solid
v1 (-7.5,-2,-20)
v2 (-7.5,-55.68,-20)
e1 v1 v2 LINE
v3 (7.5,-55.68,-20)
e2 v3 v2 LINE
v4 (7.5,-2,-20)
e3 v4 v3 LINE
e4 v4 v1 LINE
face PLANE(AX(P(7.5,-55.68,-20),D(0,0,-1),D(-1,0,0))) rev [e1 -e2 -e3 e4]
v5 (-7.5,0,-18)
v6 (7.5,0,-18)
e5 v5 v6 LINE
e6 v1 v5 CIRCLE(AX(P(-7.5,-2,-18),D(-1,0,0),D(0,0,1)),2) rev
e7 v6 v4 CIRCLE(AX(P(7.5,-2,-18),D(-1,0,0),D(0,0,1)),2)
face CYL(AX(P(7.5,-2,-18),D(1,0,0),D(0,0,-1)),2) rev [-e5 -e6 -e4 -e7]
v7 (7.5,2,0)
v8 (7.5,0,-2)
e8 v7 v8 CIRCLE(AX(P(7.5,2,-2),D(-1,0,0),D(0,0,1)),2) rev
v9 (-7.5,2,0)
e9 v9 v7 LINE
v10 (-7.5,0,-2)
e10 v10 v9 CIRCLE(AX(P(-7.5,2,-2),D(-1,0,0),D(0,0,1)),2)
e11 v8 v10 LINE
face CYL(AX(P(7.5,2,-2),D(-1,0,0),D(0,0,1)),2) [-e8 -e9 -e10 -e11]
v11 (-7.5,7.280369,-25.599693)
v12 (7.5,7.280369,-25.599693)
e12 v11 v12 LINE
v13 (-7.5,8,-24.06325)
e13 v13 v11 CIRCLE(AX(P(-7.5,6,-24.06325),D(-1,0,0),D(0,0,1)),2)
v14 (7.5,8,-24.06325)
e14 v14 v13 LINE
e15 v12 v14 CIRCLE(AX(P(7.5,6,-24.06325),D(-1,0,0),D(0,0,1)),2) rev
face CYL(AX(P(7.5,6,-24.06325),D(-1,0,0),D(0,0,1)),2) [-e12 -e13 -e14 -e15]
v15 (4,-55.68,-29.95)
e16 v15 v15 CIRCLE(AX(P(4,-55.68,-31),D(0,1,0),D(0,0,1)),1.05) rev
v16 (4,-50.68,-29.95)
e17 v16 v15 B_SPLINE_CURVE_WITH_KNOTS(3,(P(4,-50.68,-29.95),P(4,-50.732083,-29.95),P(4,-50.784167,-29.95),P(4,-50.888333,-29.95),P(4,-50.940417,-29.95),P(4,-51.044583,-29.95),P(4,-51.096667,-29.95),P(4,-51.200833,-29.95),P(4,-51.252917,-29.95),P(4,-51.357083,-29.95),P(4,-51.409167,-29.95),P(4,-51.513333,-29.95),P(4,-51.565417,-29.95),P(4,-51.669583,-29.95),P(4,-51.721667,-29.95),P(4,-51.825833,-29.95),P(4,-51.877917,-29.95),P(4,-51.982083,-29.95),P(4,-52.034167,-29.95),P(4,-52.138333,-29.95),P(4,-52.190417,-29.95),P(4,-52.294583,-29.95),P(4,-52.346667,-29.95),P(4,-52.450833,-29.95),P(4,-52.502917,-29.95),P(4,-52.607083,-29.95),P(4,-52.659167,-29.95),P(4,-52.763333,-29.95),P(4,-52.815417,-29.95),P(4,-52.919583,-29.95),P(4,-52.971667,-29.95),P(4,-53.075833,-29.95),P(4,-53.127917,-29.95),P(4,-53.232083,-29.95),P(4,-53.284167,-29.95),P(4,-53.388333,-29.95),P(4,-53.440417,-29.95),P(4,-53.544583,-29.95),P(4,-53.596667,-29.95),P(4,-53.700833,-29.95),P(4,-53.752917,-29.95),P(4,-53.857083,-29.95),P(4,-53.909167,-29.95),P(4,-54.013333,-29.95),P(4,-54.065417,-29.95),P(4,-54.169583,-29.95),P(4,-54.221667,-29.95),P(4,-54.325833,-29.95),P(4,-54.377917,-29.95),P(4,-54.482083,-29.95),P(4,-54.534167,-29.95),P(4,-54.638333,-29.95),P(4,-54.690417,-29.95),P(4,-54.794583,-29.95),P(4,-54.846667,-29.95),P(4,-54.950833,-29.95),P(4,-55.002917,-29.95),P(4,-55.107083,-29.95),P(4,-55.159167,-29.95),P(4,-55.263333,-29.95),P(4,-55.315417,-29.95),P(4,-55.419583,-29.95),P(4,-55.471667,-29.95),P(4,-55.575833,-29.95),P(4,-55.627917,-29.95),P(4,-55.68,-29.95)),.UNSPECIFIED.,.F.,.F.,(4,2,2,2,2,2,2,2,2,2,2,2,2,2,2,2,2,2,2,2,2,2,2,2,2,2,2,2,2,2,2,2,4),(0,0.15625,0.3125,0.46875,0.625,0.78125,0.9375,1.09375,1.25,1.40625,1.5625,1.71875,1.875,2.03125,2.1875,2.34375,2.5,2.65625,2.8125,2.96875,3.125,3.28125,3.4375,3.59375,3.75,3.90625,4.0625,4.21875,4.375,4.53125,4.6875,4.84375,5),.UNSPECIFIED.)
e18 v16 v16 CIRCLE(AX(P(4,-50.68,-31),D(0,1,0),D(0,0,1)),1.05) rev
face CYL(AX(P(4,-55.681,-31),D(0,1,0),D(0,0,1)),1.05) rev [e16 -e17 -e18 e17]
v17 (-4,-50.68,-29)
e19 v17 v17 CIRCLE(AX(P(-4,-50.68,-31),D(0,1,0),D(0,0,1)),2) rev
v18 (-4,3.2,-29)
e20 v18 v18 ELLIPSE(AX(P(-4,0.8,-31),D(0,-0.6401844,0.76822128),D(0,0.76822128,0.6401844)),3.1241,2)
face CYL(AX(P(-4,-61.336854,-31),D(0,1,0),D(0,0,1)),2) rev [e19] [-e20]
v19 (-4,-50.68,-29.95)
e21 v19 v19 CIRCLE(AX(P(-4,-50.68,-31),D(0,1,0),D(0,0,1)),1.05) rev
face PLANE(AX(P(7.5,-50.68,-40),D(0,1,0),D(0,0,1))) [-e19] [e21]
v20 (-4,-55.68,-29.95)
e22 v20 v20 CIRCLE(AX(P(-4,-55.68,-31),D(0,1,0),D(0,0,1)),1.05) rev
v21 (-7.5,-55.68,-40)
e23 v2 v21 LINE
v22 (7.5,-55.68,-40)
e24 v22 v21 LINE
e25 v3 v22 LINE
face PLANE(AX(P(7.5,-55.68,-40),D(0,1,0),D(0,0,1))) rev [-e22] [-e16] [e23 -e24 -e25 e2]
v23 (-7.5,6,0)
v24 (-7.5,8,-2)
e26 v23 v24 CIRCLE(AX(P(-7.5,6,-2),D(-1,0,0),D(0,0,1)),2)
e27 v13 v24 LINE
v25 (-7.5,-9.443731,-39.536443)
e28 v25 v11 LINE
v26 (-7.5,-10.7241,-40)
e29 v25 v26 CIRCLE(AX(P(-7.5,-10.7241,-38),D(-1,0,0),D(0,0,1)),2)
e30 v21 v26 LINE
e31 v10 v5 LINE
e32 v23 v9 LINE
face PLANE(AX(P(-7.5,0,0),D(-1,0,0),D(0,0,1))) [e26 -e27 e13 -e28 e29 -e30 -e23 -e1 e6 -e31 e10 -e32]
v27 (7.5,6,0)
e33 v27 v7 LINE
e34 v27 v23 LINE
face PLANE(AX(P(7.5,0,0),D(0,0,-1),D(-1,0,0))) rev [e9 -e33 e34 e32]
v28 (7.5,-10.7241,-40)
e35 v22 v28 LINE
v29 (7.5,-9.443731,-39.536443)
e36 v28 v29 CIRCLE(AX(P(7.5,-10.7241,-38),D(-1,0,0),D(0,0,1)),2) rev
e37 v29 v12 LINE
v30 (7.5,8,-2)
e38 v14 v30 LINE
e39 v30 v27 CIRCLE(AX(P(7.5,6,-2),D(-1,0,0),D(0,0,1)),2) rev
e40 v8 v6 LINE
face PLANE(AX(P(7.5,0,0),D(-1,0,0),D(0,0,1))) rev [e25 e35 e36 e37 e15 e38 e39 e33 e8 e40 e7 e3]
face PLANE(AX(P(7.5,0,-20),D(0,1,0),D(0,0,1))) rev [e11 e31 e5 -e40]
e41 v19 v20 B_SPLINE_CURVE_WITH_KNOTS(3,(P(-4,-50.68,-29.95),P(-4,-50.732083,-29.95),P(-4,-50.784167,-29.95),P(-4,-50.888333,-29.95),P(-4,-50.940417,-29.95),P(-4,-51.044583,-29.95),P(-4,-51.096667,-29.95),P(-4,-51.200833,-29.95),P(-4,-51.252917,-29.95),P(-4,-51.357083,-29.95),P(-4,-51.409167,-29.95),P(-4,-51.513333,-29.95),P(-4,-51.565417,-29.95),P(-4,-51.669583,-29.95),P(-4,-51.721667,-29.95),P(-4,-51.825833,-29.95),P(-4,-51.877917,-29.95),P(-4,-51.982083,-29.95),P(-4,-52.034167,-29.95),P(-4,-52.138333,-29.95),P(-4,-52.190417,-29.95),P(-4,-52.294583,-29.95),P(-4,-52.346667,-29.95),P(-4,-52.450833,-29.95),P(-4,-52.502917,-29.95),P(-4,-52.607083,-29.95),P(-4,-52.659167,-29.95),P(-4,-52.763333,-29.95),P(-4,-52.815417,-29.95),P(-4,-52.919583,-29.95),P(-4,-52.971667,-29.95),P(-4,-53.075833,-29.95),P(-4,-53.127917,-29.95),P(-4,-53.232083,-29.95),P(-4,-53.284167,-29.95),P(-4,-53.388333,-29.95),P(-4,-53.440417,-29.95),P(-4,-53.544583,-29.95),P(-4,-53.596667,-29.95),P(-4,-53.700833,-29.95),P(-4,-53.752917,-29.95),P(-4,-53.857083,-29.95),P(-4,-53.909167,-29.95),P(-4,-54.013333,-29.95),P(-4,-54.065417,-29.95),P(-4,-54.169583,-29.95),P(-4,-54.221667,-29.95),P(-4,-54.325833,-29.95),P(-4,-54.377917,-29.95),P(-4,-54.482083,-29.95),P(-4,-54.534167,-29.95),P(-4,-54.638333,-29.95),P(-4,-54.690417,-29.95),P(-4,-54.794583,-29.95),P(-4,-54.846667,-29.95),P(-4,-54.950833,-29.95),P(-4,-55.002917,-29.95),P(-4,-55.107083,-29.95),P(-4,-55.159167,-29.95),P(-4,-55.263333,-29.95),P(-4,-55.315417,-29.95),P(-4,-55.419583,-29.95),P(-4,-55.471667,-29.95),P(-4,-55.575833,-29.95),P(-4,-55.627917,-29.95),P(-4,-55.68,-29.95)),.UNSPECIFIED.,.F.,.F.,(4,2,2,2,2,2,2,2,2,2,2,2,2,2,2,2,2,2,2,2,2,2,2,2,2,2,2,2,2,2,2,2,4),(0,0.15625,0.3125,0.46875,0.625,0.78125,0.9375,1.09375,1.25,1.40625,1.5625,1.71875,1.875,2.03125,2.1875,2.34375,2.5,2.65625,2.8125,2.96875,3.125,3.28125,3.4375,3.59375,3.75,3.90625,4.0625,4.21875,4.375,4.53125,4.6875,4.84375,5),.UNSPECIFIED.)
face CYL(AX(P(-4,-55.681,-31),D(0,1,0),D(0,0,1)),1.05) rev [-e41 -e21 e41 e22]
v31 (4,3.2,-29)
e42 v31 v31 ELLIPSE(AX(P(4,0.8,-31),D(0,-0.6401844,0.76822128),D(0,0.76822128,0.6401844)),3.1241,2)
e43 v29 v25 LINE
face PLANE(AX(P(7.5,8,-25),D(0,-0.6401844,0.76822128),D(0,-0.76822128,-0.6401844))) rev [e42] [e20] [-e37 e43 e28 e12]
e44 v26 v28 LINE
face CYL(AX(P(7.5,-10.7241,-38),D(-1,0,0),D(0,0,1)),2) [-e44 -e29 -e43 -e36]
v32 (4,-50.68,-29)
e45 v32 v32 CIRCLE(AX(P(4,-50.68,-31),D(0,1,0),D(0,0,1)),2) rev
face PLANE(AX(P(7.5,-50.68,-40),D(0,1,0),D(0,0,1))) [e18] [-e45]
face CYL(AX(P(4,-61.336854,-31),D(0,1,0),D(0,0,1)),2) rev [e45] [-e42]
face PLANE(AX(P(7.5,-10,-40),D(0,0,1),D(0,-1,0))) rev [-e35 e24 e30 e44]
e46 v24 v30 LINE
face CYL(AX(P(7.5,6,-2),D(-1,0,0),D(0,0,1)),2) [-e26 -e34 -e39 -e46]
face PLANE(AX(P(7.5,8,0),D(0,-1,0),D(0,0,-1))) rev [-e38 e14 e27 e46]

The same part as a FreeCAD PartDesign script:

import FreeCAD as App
import Part
import Sketcher


def edges_at(feature, points):
    """Names of the edges that pass closest to the given points."""
    edges = feature.Shape.Edges
    near = lambda p: min(range(len(edges)), key=lambda i: edges[i].distToShape(Part.Vertex(*p))[0])
    return sorted({f"Edge{near(p) + 1}" for p in points})

doc = App.newDocument("Part")
body = doc.addObject("PartDesign::Body", "Body")

sketch1 = body.newObject("Sketcher::SketchObject", "Sketch")
sketch1.AttachmentSupport = (doc.getObject("YZ_Plane"), [""])
sketch1.MapMode = "FlatFace"
sketch1.addGeometry(Part.LineSegment(App.Vector(8, 0, 0), App.Vector(0, 0, 0)), False)
sketch1.addGeometry(Part.LineSegment(App.Vector(0, 0, 0), App.Vector(0, -20, 0)), False)
sketch1.addGeometry(Part.LineSegment(App.Vector(0, -20, 0), App.Vector(-55.68, -20, 0)), False)
sketch1.addGeometry(Part.LineSegment(App.Vector(-55.68, -20, 0), App.Vector(-55.68, -40, 0)), False)
sketch1.addGeometry(Part.LineSegment(App.Vector(-55.68, -40, 0), App.Vector(-10, -40, 0)), False)
sketch1.addGeometry(Part.LineSegment(App.Vector(-10, -40, 0), App.Vector(8, -25, 0)), False)
sketch1.addGeometry(Part.LineSegment(App.Vector(8, -25, 0), App.Vector(8, 0, 0)), False)
sketch1.addConstraint(Sketcher.Constraint("Coincident", 0, 2, 1, 1))
sketch1.addConstraint(Sketcher.Constraint("Coincident", 1, 2, 2, 1))
sketch1.addConstraint(Sketcher.Constraint("Coincident", 2, 2, 3, 1))
sketch1.addConstraint(Sketcher.Constraint("Coincident", 3, 2, 4, 1))
sketch1.addConstraint(Sketcher.Constraint("Coincident", 4, 2, 5, 1))
sketch1.addConstraint(Sketcher.Constraint("Coincident", 5, 2, 6, 1))
sketch1.addConstraint(Sketcher.Constraint("Coincident", 6, 2, 0, 1))
sketch1.addConstraint(Sketcher.Constraint("Horizontal", 0))
sketch1.addConstraint(Sketcher.Constraint("Vertical", 1))
sketch1.addConstraint(Sketcher.Constraint("Horizontal", 2))
sketch1.addConstraint(Sketcher.Constraint("Vertical", 3))
sketch1.addConstraint(Sketcher.Constraint("Horizontal", 4))
sketch1.addConstraint(Sketcher.Constraint("Vertical", 6))
sketch1.addConstraint(Sketcher.Constraint("Coincident", 0, 2, -1, 1))
sketch1.addConstraint(Sketcher.Constraint("Equal", 1, 3))
sketch1.addConstraint(Sketcher.Constraint("DistanceX", 0, 2, 0, 1, 8.0))
sketch1.addConstraint(Sketcher.Constraint("DistanceY", 1, 2, 1, 1, 20.0))
sketch1.addConstraint(Sketcher.Constraint("DistanceY", 6, 1, 6, 2, 25.0))
sketch1.addConstraint(Sketcher.Constraint("DistanceX", 4, 2, -1, 1, 10.0))
sketch1.addConstraint(Sketcher.Constraint("DistanceX", 2, 2, 2, 1, 55.68))
pad1 = body.newObject("PartDesign::Pad", "Pad")
pad1.Profile = sketch1
pad1.Length = 15
pad1.Midplane = True

sketch2 = body.newObject("Sketcher::SketchObject", "Sketch001")
sketch2.AttachmentSupport = (doc.getObject("XZ_Plane"), [""])
sketch2.MapMode = "FlatFace"
sketch2.AttachmentOffset = App.Placement(App.Vector(0, 0, -8), App.Rotation())
sketch2.addGeometry(Part.Circle(App.Vector(-4, -31, 0), App.Vector(0, 0, 1), 2), False)
sketch2.addGeometry(Part.Circle(App.Vector(4, -31, 0), App.Vector(0, 0, 1), 2), False)
sketch2.addConstraint(Sketcher.Constraint("Equal", 0, 1))
sketch2.addConstraint(Sketcher.Constraint("Symmetric", 0, 3, 1, 3, -2))
sketch2.addConstraint(Sketcher.Constraint("Diameter", 0, 4.0))
sketch2.addConstraint(Sketcher.Constraint("DistanceX", 0, 3, -1, 1, 4.0))
sketch2.addConstraint(Sketcher.Constraint("DistanceY", 0, 3, -1, 1, 31.0))
pocket1 = body.newObject("PartDesign::Pocket", "Pocket")
pocket1.Profile = sketch2
pocket1.Length = 58.68
pocket1.Reversed = True

sketch3 = body.newObject("Sketcher::SketchObject", "Sketch002")
sketch3.AttachmentSupport = (doc.getObject("XZ_Plane"), [""])
sketch3.MapMode = "FlatFace"
sketch3.AttachmentOffset = App.Placement(App.Vector(0, 0, -8), App.Rotation())
sketch3.addGeometry(Part.Circle(App.Vector(-4, -31, 0), App.Vector(0, 0, 1), 1.05), False)
sketch3.addConstraint(Sketcher.Constraint("Diameter", 0, 2.1))
sketch3.addConstraint(Sketcher.Constraint("DistanceX", 0, 3, -1, 1, 4.0))
sketch3.addConstraint(Sketcher.Constraint("DistanceY", 0, 3, -1, 1, 31.0))
pocket2 = body.newObject("PartDesign::Pocket", "Pocket001")
pocket2.Profile = sketch3
pocket2.Length = 63.68
pocket2.Reversed = True

sketch4 = body.newObject("Sketcher::SketchObject", "Sketch003")
sketch4.AttachmentSupport = (doc.getObject("XZ_Plane"), [""])
sketch4.MapMode = "FlatFace"
sketch4.AttachmentOffset = App.Placement(App.Vector(0, 0, -8), App.Rotation())
sketch4.addGeometry(Part.Circle(App.Vector(4, -31, 0), App.Vector(0, 0, 1), 1.05), False)
sketch4.addConstraint(Sketcher.Constraint("Diameter", 0, 2.1))
sketch4.addConstraint(Sketcher.Constraint("DistanceX", -1, 1, 0, 3, 4.0))
sketch4.addConstraint(Sketcher.Constraint("DistanceY", 0, 3, -1, 1, 31.0))
pocket3 = body.newObject("PartDesign::Pocket", "Pocket002")
pocket3.Profile = sketch4
pocket3.Length = 63.68
pocket3.Reversed = True
doc.recompute()

fillet = body.newObject("PartDesign::Fillet", "Fillet")
fillet.Base = (pocket3, edges_at(pocket3, [
    (0, 0, 0),
    (0, 8, 0),
    (0, 8, -25),
    (0, -10, -40),
    (0, 0, -20),
]))
fillet.Radius = 2

doc.recompute()
